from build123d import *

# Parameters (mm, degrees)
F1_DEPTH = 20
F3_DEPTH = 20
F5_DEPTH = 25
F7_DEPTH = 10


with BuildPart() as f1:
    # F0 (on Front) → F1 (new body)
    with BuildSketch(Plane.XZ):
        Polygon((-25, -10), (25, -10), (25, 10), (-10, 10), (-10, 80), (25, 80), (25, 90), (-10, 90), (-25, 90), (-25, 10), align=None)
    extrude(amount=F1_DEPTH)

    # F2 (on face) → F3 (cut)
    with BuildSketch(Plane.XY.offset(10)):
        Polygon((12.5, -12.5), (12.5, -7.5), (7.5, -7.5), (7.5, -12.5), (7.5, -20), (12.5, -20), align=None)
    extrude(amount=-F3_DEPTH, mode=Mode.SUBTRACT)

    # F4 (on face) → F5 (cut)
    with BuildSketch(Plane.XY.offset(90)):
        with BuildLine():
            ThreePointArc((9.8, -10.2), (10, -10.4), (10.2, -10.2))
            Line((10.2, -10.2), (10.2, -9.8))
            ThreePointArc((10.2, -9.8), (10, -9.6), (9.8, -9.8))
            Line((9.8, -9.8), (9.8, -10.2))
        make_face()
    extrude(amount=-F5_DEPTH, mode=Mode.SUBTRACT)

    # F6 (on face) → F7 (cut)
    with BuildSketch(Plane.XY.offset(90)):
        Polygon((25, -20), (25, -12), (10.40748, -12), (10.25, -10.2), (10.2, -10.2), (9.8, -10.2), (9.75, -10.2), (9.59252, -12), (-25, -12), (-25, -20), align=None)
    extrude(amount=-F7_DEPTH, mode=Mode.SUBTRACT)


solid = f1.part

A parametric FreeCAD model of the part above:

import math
import FreeCAD as App
import Part
import Sketcher
from FreeCAD import Vector
Q = App.Units.Quantity


def add_polygon(sketch, points):
    """Adds a closed chain of lines whose ends are joined by coincident constraints."""
    first, n = sketch.GeometryCount, len(points)
    for a, b in zip(points, points[1:] + points[:1]):
        sketch.addGeometry(Part.LineSegment(App.Vector(*a, 0), App.Vector(*b, 0)), False)
    for i in range(n):
        sketch.addConstraint(Sketcher.Constraint("Coincident", first + i, 2, first + (i + 1) % n, 1))

doc = App.newDocument("Part")
body = doc.addObject("PartDesign::Body", "Body")

# Sketch on XZ plane
sketch1 = body.newObject("Sketcher::SketchObject", "Sketch")
sketch1.AttachmentSupport = (doc.getObject("XZ_Plane"), [""])
sketch1.MapMode = "FlatFace"
add_polygon(sketch1, [(-25, -10), (25, -10), (25, 10), (-10, 10), (-10, 80), (25, 80), (25, 90), (-25, 90)])  # lines 0-7
sketch1.addConstraint([
    Sketcher.Constraint("Horizontal", 0),
    Sketcher.Constraint("Vertical", 1),
    Sketcher.Constraint("Horizontal", 2),
    Sketcher.Constraint("Vertical", 3),
    Sketcher.Constraint("Horizontal", 4),
    Sketcher.Constraint("Vertical", 5),
    Sketcher.Constraint("Horizontal", 6),
    Sketcher.Constraint("Vertical", 7),
    Sketcher.Constraint("Symmetric", 1, 2, 7, 2, -1, 1),
    Sketcher.Constraint("Vertical", 1, 2, 4, 2),
    Sketcher.Constraint("DistanceX", 0, 1, 0, 2, Q("50 mm")),
    Sketcher.Constraint("DistanceX", 2, 2, 2, 1, Q("35 mm")),
    Sketcher.Constraint("DistanceY", 1, 1, 1, 2, Q("20 mm")),
    Sketcher.Constraint("DistanceY", 3, 1, 3, 2, Q("70 mm")),
    Sketcher.Constraint("DistanceY", 5, 1, 5, 2, Q("10 mm")),
])
pad1 = body.newObject("PartDesign::Pad", "Pad")
pad1.Profile = sketch1
pad1.Length = 20

# Sketch on XY plane
sketch2 = body.newObject("Sketcher::SketchObject", "Sketch001")
sketch2.AttachmentSupport = (doc.getObject("XY_Plane"), [""])
sketch2.MapMode = "FlatFace"
sketch2.AttachmentOffset = App.Placement(Vector(0, 0, 10), App.Rotation())
add_polygon(sketch2, [(12.5, -7.5), (7.5, -7.5), (7.5, -20), (12.5, -20)])  # lines 0-3
sketch2.addConstraint([
    Sketcher.Constraint("Horizontal", 0),
    Sketcher.Constraint("Vertical", 1),
    Sketcher.Constraint("Horizontal", 2),
    Sketcher.Constraint("Vertical", 3),
    Sketcher.Constraint("DistanceX", 0, 2, 0, 1, Q("5 mm")),
    Sketcher.Constraint("DistanceY", 1, 2, 1, 1, Q("12.5 mm")),
    Sketcher.Constraint("DistanceY", 1, 2, -1, 1, Q("20 mm")),
    Sketcher.Constraint("DistanceX", -1, 1, 0, 2, Q("7.5 mm")),
])
pocket1 = body.newObject("PartDesign::Pocket", "Pocket")
pocket1.Profile = sketch2
pocket1.Length = 20

# Sketch on XY plane
sketch3 = body.newObject("Sketcher::SketchObject", "Sketch002")
sketch3.AttachmentSupport = (doc.getObject("XY_Plane"), [""])
sketch3.MapMode = "FlatFace"
sketch3.AttachmentOffset = App.Placement(Vector(0, 0, 90), App.Rotation())
sketch3.addGeometry([
    Part.ArcOfCircle(Part.Circle(Vector(10, -10.2, 0), Vector(0, 0, 1), 0.2), math.radians(180), math.radians(360)),
    Part.LineSegment(Vector(10.2, -10.2, 0), Vector(10.2, -9.8, 0)),
    Part.ArcOfCircle(Part.Circle(Vector(10, -9.8, 0), Vector(0, 0, 1), 0.2), math.radians(0), math.radians(180)),
    Part.LineSegment(Vector(9.8, -9.8, 0), Vector(9.8, -10.2, 0)),
], False)
sketch3.addConstraint([
    Sketcher.Constraint("Tangent", 0, 2, 1, 1),
    Sketcher.Constraint("Tangent", 1, 2, 2, 1),
    Sketcher.Constraint("Tangent", 2, 2, 3, 1),
    Sketcher.Constraint("Tangent", 3, 2, 0, 1),
    Sketcher.Constraint("Vertical", 1),
    Sketcher.Constraint("Vertical", 3),
    Sketcher.Constraint("Radius", 0, Q("0.2 mm")),
    Sketcher.Constraint("DistanceY", 1, 1, 1, 2, Q("0.4 mm")),
    Sketcher.Constraint("DistanceX", -1, 1, 0, 3, Q("10 mm")),
    Sketcher.Constraint("DistanceY", 0, 3, -1, 1, Q("10.2 mm")),
])
pocket2 = body.newObject("PartDesign::Pocket", "Pocket001")
pocket2.Profile = sketch3
pocket2.Length = 25

# Sketch on XY plane
sketch4 = body.newObject("Sketcher::SketchObject", "Sketch003")
sketch4.AttachmentSupport = (doc.getObject("XY_Plane"), [""])
sketch4.MapMode = "FlatFace"
sketch4.AttachmentOffset = App.Placement(Vector(0, 0, 90), App.Rotation())
add_polygon(sketch4, [(25, -20), (25, -12), (10.40748, -12), (10.25, -10.2), (9.75, -10.2), (9.59252, -12), (-25, -12), (-25, -20)])  # lines 0-7
sketch4.addConstraint([
    Sketcher.Constraint("Vertical", 0),
    Sketcher.Constraint("Horizontal", 1),
    Sketcher.Constraint("Horizontal", 3),
    Sketcher.Constraint("Horizontal", 5),
    Sketcher.Constraint("Vertical", 6),
    Sketcher.Constraint("Horizontal", 7),
    Sketcher.Constraint("Symmetric", 0, 2, 5, 2, -2),
    Sketcher.Constraint("Equal", 2, 4),
    Sketcher.Constraint("DistanceX", 7, 1, 7, 2, Q("50 mm")),
    Sketcher.Constraint("DistanceY", 0, 1, 0, 2, Q("8 mm")),
    Sketcher.Constraint("Angle", 2, Q("95.000013 deg")),
    Sketcher.Constraint("DistanceX", 3, 2, 3, 1, Q("0.5 mm")),
    Sketcher.Constraint("DistanceY", 0, 2, -1, 1, Q("12 mm")),
    Sketcher.Constraint("DistanceY", 2, 2, -1, 1, Q("10.2 mm")),
    Sketcher.Constraint("DistanceX", -1, 1, 2, 2, Q("10.25 mm")),
])
pocket3 = body.newObject("PartDesign::Pocket", "Pocket002")
pocket3.Profile = sketch4
pocket3.Length = 10

doc.recompute()
